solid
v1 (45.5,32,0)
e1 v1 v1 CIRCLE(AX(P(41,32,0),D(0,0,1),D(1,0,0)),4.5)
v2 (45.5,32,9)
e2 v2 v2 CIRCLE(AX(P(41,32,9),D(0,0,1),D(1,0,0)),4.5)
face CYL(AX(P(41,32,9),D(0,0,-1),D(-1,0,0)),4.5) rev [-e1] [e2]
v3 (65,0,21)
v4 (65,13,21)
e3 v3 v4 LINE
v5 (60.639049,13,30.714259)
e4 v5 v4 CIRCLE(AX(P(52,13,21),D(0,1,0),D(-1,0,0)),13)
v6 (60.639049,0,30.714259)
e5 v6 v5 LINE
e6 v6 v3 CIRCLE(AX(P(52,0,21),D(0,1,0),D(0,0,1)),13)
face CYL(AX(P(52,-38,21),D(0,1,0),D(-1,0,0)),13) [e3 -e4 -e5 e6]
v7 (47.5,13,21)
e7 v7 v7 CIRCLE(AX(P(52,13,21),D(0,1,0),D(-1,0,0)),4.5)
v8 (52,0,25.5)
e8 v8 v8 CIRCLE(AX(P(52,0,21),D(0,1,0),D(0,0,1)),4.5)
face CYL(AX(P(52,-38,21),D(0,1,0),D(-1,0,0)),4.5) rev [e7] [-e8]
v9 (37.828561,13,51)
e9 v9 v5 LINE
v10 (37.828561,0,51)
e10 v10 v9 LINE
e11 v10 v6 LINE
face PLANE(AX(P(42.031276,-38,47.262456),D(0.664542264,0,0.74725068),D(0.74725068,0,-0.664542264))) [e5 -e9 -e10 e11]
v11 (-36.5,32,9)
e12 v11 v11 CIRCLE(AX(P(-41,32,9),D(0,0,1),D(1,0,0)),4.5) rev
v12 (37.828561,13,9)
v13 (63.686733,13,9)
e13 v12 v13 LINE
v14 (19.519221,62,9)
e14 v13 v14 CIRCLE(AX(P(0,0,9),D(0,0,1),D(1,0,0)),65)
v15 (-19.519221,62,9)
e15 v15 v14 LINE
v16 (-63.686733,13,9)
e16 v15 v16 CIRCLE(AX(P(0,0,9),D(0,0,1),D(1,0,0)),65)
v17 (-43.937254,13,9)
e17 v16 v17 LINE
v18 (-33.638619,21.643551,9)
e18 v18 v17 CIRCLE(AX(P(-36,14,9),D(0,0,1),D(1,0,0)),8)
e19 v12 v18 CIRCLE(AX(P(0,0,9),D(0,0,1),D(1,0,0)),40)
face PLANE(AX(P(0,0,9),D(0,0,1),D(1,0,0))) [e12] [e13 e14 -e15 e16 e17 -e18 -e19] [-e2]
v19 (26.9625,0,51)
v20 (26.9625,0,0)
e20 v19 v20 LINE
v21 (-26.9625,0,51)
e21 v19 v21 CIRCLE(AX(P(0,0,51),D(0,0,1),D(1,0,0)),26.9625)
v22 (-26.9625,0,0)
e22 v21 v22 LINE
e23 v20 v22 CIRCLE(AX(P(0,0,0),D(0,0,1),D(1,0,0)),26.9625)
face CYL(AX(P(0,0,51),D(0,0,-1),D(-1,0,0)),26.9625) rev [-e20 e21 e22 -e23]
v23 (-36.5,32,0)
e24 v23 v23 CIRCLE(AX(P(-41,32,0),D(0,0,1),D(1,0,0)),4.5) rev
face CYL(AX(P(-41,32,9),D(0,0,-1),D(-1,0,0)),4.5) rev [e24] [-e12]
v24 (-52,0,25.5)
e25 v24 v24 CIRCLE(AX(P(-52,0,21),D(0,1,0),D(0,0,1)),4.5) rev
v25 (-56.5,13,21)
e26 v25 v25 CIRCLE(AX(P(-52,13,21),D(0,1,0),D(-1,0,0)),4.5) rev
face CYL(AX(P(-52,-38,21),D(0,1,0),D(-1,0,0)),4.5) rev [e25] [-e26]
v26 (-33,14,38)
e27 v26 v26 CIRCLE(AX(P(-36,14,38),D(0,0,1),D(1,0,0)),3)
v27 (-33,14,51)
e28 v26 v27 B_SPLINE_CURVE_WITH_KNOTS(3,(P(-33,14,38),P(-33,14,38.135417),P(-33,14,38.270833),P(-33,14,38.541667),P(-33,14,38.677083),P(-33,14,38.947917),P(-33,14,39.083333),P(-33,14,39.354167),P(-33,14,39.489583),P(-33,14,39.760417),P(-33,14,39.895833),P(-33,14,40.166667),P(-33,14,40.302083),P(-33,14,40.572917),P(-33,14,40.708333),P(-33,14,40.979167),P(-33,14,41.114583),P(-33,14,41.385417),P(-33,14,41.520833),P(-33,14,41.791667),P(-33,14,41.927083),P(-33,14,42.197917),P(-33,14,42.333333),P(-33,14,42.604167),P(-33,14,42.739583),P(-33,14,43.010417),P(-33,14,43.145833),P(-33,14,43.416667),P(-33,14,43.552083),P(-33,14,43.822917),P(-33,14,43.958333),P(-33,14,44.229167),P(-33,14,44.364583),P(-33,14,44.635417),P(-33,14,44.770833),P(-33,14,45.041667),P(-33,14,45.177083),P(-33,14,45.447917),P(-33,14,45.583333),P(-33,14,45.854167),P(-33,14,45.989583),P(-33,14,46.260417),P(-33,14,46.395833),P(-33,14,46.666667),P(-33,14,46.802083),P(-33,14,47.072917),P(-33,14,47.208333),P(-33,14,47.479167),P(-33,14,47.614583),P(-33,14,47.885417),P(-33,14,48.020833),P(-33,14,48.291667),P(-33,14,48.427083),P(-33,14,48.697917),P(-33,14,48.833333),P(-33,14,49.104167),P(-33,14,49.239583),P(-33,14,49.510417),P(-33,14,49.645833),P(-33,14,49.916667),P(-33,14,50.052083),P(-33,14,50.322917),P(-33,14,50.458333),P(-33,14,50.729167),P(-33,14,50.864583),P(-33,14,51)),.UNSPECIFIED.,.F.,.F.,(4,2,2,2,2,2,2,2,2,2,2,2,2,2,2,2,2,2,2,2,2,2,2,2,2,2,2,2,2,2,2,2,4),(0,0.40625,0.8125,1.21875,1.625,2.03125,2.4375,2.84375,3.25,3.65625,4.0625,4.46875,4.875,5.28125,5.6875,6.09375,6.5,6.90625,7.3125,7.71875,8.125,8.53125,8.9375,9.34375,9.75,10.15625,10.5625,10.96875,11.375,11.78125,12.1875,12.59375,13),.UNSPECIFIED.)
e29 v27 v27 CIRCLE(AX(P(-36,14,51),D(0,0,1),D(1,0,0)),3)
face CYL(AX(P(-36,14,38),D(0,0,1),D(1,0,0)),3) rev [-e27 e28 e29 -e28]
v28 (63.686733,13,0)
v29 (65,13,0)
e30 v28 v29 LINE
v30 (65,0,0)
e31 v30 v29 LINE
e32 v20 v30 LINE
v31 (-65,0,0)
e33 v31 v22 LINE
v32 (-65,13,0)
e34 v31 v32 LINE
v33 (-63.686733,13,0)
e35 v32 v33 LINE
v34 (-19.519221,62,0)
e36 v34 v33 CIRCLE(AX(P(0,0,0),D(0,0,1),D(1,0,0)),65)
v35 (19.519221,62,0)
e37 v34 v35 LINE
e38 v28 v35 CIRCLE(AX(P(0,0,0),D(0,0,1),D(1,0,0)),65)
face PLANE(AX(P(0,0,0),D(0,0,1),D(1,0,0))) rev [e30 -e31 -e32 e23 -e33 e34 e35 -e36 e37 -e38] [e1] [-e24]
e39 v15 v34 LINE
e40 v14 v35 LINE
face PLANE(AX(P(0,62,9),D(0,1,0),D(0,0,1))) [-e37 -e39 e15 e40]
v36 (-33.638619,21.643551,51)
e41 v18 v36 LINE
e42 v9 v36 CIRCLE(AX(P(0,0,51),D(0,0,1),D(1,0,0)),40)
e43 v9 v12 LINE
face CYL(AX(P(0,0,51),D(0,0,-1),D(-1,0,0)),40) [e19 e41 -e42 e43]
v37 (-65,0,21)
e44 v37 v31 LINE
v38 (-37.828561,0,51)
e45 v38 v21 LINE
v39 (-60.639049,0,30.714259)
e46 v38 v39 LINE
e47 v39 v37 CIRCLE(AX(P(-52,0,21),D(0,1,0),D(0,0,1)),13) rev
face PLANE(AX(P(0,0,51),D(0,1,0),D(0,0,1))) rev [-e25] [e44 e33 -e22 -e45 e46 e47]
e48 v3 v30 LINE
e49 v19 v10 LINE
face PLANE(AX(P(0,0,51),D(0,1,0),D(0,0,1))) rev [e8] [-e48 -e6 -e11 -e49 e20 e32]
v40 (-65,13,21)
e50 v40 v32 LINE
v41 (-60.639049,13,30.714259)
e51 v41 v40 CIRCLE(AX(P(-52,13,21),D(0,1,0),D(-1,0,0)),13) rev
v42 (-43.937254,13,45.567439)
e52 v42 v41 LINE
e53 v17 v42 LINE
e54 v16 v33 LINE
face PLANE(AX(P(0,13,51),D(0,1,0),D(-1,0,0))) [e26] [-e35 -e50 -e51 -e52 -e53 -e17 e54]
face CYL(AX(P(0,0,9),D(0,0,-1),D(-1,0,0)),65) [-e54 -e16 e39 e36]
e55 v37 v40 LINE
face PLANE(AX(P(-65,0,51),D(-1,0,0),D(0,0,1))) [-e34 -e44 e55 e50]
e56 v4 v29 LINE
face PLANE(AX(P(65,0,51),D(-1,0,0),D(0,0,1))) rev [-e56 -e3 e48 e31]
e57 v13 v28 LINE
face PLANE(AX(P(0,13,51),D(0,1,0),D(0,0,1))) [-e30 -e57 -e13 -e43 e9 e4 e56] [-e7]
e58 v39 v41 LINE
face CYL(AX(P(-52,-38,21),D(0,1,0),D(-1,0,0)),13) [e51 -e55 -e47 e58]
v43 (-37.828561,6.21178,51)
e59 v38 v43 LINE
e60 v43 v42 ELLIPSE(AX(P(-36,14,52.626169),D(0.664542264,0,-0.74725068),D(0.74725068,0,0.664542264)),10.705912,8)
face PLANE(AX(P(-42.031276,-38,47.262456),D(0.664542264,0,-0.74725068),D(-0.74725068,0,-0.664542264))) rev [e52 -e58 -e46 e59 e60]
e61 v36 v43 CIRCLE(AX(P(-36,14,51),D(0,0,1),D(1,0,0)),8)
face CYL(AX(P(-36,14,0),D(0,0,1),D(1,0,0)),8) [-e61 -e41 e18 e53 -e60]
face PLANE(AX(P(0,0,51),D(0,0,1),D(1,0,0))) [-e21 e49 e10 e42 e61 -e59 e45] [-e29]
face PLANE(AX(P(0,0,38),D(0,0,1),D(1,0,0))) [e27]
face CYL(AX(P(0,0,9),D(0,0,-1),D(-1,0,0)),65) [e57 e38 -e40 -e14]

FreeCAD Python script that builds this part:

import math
import FreeCAD as App
import Part
import Sketcher

V = App.Vector

doc = App.newDocument("Part")
body = doc.addObject("PartDesign::Body", "Body")

sketch1 = body.newObject("Sketcher::SketchObject", "Sketch")
sketch1.AttachmentSupport = (doc.getObject("XY_Plane"), [""])
sketch1.MapMode = "FlatFace"
sketch1.addGeometry(Part.LineSegment(V(-63.686733, 13, 0), V(-37.828561, 13, 0)), False)
sketch1.addGeometry(Part.ArcOfCircle(Part.Circle(V(0, 0, 0), V(0, 0, 1), 40), math.radians(147.242212), math.radians(161.034425)), False)
sketch1.addGeometry(Part.ArcOfCircle(Part.Circle(V(0, 0, 0), V(0, 0, 1), 40), math.radians(18.965575), math.radians(147.242212)), False)
sketch1.addGeometry(Part.LineSegment(V(37.828561, 13, 0), V(63.686733, 13, 0)), False)
sketch1.addGeometry(Part.ArcOfCircle(Part.Circle(V(0, 0, 0), V(0, 0, 1), 65), math.radians(11.536959), math.radians(72.524635)), False)
sketch1.addGeometry(Part.LineSegment(V(19.519221, 62, 0), V(-19.519221, 62, 0)), False)
sketch1.addGeometry(Part.ArcOfCircle(Part.Circle(V(0, 0, 0), V(0, 0, 1), 65), math.radians(107.475365), math.radians(168.463041)), False)
sketch1.addGeometry(Part.Circle(V(-41, 32, 0), V(0, 0, 1), 4.5), False)
sketch1.addGeometry(Part.Circle(V(41, 32, 0), V(0, 0, 1), 4.5), False)
sketch1.addConstraint(Sketcher.Constraint("Coincident", 0, 2, 1, 2))
sketch1.addConstraint(Sketcher.Constraint("Tangent", 1, 1, 2, 2))
sketch1.addConstraint(Sketcher.Constraint("Coincident", 2, 1, 3, 1))
sketch1.addConstraint(Sketcher.Constraint("Coincident", 3, 2, 4, 1))
sketch1.addConstraint(Sketcher.Constraint("Coincident", 4, 2, 5, 1))
sketch1.addConstraint(Sketcher.Constraint("Coincident", 5, 2, 6, 1))
sketch1.addConstraint(Sketcher.Constraint("Coincident", 6, 2, 0, 1))
sketch1.addConstraint(Sketcher.Constraint("Horizontal", 0))
sketch1.addConstraint(Sketcher.Constraint("Horizontal", 3))
sketch1.addConstraint(Sketcher.Constraint("Horizontal", 5))
sketch1.addConstraint(Sketcher.Constraint("Coincident", 1, 3, -1, 1))
sketch1.addConstraint(Sketcher.Constraint("Coincident", 4, 3, -1, 1))
sketch1.addConstraint(Sketcher.Constraint("Coincident", 6, 3, -1, 1))
sketch1.addConstraint(Sketcher.Constraint("Equal", 1, 2))
sketch1.addConstraint(Sketcher.Constraint("Equal", 4, 6))
sketch1.addConstraint(Sketcher.Constraint("Equal", 7, 8))
sketch1.addConstraint(Sketcher.Constraint("Symmetric", 7, 3, 8, 3, -2))
sketch1.addConstraint(Sketcher.Constraint("Horizontal", 0, 2, 2, 1))
sketch1.addConstraint(Sketcher.Constraint("Diameter", 7, 9.0))
sketch1.addConstraint(Sketcher.Constraint("Radius", 1, 40.0))
sketch1.addConstraint(Sketcher.Constraint("Radius", 4, 65.0))
sketch1.addConstraint(Sketcher.Constraint("DistanceX", 7, 3, -1, 1, 41.0))
sketch1.addConstraint(Sketcher.Constraint("DistanceY", -1, 1, 7, 3, 32.0))
sketch1.addConstraint(Sketcher.Constraint("DistanceY", -1, 1, 0, 2, 13.0))
sketch1.addConstraint(Sketcher.Constraint("DistanceY", -1, 1, 4, 2, 62.0))
sketch1.addConstraint(Sketcher.Constraint("DistanceX", 1, 1, -1, 1, 33.638619))
pad1 = body.newObject("PartDesign::Pad", "Pad")
pad1.Profile = sketch1
pad1.Length = 9

sketch2 = body.newObject("Sketcher::SketchObject", "Sketch001")
sketch2.AttachmentSupport = (doc.getObject("XY_Plane"), [""])
sketch2.MapMode = "FlatFace"
sketch2.addGeometry(Part.LineSegment(V(-65, 13, 0), V(-65, 0, 0)), False)
sketch2.addGeometry(Part.LineSegment(V(-65, 0, 0), V(-26.9625, 0, 0)), False)
sketch2.addGeometry(Part.ArcOfCircle(Part.Circle(V(0, 0, 0), V(0, 0, 1), 26.9625), math.radians(0), math.radians(180)), False)
sketch2.addGeometry(Part.LineSegment(V(26.9625, 0, 0), V(65, 0, 0)), False)
sketch2.addGeometry(Part.LineSegment(V(65, 0, 0), V(65, 13, 0)), False)
sketch2.addGeometry(Part.LineSegment(V(65, 13, 0), V(37.828561, 13, 0)), False)
sketch2.addGeometry(Part.ArcOfCircle(Part.Circle(V(0, 0, 0), V(0, 0, 1), 40), math.radians(18.965575), math.radians(161.034425)), False)
sketch2.addGeometry(Part.LineSegment(V(-37.828561, 13, 0), V(-65, 13, 0)), False)
sketch2.addConstraint(Sketcher.Constraint("Coincident", 0, 2, 1, 1))
sketch2.addConstraint(Sketcher.Constraint("Coincident", 1, 2, 2, 2))
sketch2.addConstraint(Sketcher.Constraint("Coincident", 2, 1, 3, 1))
sketch2.addConstraint(Sketcher.Constraint("Coincident", 3, 2, 4, 1))
sketch2.addConstraint(Sketcher.Constraint("Coincident", 4, 2, 5, 1))
sketch2.addConstraint(Sketcher.Constraint("Coincident", 5, 2, 6, 1))
sketch2.addConstraint(Sketcher.Constraint("Coincident", 6, 2, 7, 1))
sketch2.addConstraint(Sketcher.Constraint("Coincident", 7, 2, 0, 1))
sketch2.addConstraint(Sketcher.Constraint("Vertical", 0))
sketch2.addConstraint(Sketcher.Constraint("Horizontal", 1))
sketch2.addConstraint(Sketcher.Constraint("Horizontal", 3))
sketch2.addConstraint(Sketcher.Constraint("Vertical", 4))
sketch2.addConstraint(Sketcher.Constraint("Horizontal", 5))
sketch2.addConstraint(Sketcher.Constraint("Horizontal", 7))
sketch2.addConstraint(Sketcher.Constraint("Coincident", 2, 3, -1, 1))
sketch2.addConstraint(Sketcher.Constraint("Coincident", 6, 3, -1, 1))
sketch2.addConstraint(Sketcher.Constraint("Symmetric", 0, 2, 3, 2, -1, 1))
sketch2.addConstraint(Sketcher.Constraint("PointOnObject", 0, 2, -1))
sketch2.addConstraint(Sketcher.Constraint("Horizontal", 5, 2, 6, 2))
sketch2.addConstraint(Sketcher.Constraint("Radius", 6, 40.0))
sketch2.addConstraint(Sketcher.Constraint("DistanceY", 0, 2, 0, 1, 13.0))
sketch2.addConstraint(Sketcher.Constraint("DistanceX", 0, 2, -1, 1, 65.0))
sketch2.addConstraint(Sketcher.Constraint("Radius", 2, 26.9625))
pad2 = body.newObject("PartDesign::Pad", "Pad001")
pad2.Profile = sketch2
pad2.Length = 51

sketch3 = body.newObject("Sketcher::SketchObject", "Sketch002")
sketch3.AttachmentSupport = (doc.getObject("XZ_Plane"), [""])
sketch3.MapMode = "FlatFace"
sketch3.AttachmentOffset = App.Placement(V(0, 0, -13), App.Rotation())
sketch3.addGeometry(Part.LineSegment(V(-37.828561, 51, 0), V(-60.639049, 30.714259, 0)), False)
sketch3.addGeometry(Part.ArcOfCircle(Part.Circle(V(-52, 21, 0), V(0, 0, 1), 13), math.radians(131.647219), math.radians(180)), False)
sketch3.addGeometry(Part.LineSegment(V(-65, 21, 0), V(-65, 51, 0)), False)
sketch3.addGeometry(Part.LineSegment(V(-65, 51, 0), V(-37.828561, 51, 0)), False)
sketch3.addGeometry(Part.Circle(V(-52, 21, 0), V(0, 0, 1), 4.5), False)
sketch3.addGeometry(Part.LineSegment(V(60.639049, 30.714259, 0), V(37.828561, 51, 0)), False)
sketch3.addGeometry(Part.LineSegment(V(37.828561, 51, 0), V(65, 51, 0)), False)
sketch3.addGeometry(Part.LineSegment(V(65, 51, 0), V(65, 21, 0)), False)
sketch3.addGeometry(Part.ArcOfCircle(Part.Circle(V(52, 21, 0), V(0, 0, 1), 13), math.radians(0), math.radians(48.352781)), False)
sketch3.addGeometry(Part.Circle(V(52, 21, 0), V(0, 0, 1), 4.5), False)
sketch3.addConstraint(Sketcher.Constraint("Tangent", 0, 2, 1, 1))
sketch3.addConstraint(Sketcher.Constraint("Tangent", 1, 2, 2, 1))
sketch3.addConstraint(Sketcher.Constraint("Coincident", 2, 2, 3, 1))
sketch3.addConstraint(Sketcher.Constraint("Coincident", 3, 2, 0, 1))
sketch3.addConstraint(Sketcher.Constraint("Coincident", 5, 2, 6, 1))
sketch3.addConstraint(Sketcher.Constraint("Coincident", 6, 2, 7, 1))
sketch3.addConstraint(Sketcher.Constraint("Tangent", 7, 2, 8, 1))
sketch3.addConstraint(Sketcher.Constraint("Tangent", 8, 2, 5, 1))
sketch3.addConstraint(Sketcher.Constraint("Vertical", 2))
sketch3.addConstraint(Sketcher.Constraint("Horizontal", 3))
sketch3.addConstraint(Sketcher.Constraint("Horizontal", 6))
sketch3.addConstraint(Sketcher.Constraint("Vertical", 7))
sketch3.addConstraint(Sketcher.Constraint("Coincident", 4, 3, 1, 3))
sketch3.addConstraint(Sketcher.Constraint("Coincident", 9, 3, 8, 3))
sketch3.addConstraint(Sketcher.Constraint("Equal", 1, 8))
sketch3.addConstraint(Sketcher.Constraint("Equal", 4, 9))
sketch3.addConstraint(Sketcher.Constraint("Symmetric", 1, 3, 8, 3, -2))
sketch3.addConstraint(Sketcher.Constraint("Symmetric", 3, 2, 5, 2, -2))
sketch3.addConstraint(Sketcher.Constraint("Diameter", 4, 9.0))
sketch3.addConstraint(Sketcher.Constraint("Radius", 1, 13.0))
sketch3.addConstraint(Sketcher.Constraint("DistanceY", 2, 1, 2, 2, 30.0))
sketch3.addConstraint(Sketcher.Constraint("DistanceX", 1, 3, -1, 1, 52.0))
sketch3.addConstraint(Sketcher.Constraint("DistanceY", -1, 1, 1, 3, 21.0))
sketch3.addConstraint(Sketcher.Constraint("DistanceX", 3, 1, 3, 2, 27.171439))
pocket1 = body.newObject("PartDesign::Pocket", "Pocket")
pocket1.Profile = sketch3
pocket1.Length = 51
pocket1.Reversed = True

sketch4 = body.newObject("Sketcher::SketchObject", "Sketch003")
sketch4.AttachmentSupport = (doc.getObject("XY_Plane"), [""])
sketch4.MapMode = "FlatFace"
sketch4.addGeometry(Part.ArcOfCircle(Part.Circle(V(-36, 14, 0), V(0, 0, 1), 8), math.radians(-103.212901), math.radians(0)), False)
sketch4.addGeometry(Part.ArcOfCircle(Part.Circle(V(-36, 14, 0), V(0, 0, 1), 8), math.radians(0), math.radians(72.83211)), False)
sketch4.addGeometry(Part.ArcOfCircle(Part.Circle(V(-36, 14, 0), V(0, 0, 1), 8), math.radians(72.83211), math.radians(256.787099)), False)
sketch4.addConstraint(Sketcher.Constraint("Tangent", 0, 2, 1, 1))
sketch4.addConstraint(Sketcher.Constraint("Tangent", 1, 2, 2, 1))
sketch4.addConstraint(Sketcher.Constraint("Tangent", 2, 2, 0, 1))
sketch4.addConstraint(Sketcher.Constraint("Horizontal", 2, 3, 0, 2))
sketch4.addConstraint(Sketcher.Constraint("Radius", 0, 8.0))
sketch4.addConstraint(Sketcher.Constraint("DistanceX", 0, 3, -1, 1, 36.0))
sketch4.addConstraint(Sketcher.Constraint("DistanceY", -1, 1, 0, 3, 14.0))
sketch4.addConstraint(Sketcher.Constraint("DistanceX", 1, 2, -1, 1, 33.638619))
sketch4.addConstraint(Sketcher.Constraint("DistanceX", 2, 2, -1, 1, 37.828561))
pad3 = body.newObject("PartDesign::Pad", "Pad002")
pad3.Profile = sketch4
pad3.Length = 51

sketch5 = body.newObject("Sketcher::SketchObject", "Sketch004")
sketch5.AttachmentSupport = (doc.getObject("XY_Plane"), [""])
sketch5.MapMode = "FlatFace"
sketch5.AttachmentOffset = App.Placement(V(0, 0, 38), App.Rotation())
sketch5.addGeometry(Part.ArcOfCircle(Part.Circle(V(-36, 14, 0), V(0, 0, 1), 3), math.radians(-127.554819), math.radians(0)), False)
sketch5.addGeometry(Part.ArcOfCircle(Part.Circle(V(-36, 14, 0), V(0, 0, 1), 3), math.radians(0), math.radians(94.037514)), False)
sketch5.addGeometry(Part.ArcOfCircle(Part.Circle(V(-36, 14, 0), V(0, 0, 1), 3), math.radians(94.037514), math.radians(232.445181)), False)
sketch5.addConstraint(Sketcher.Constraint("Tangent", 0, 2, 1, 1))
sketch5.addConstraint(Sketcher.Constraint("Tangent", 1, 2, 2, 1))
sketch5.addConstraint(Sketcher.Constraint("Tangent", 2, 2, 0, 1))
sketch5.addConstraint(Sketcher.Constraint("Horizontal", 2, 3, 0, 2))
sketch5.addConstraint(Sketcher.Constraint("Radius", 0, 3.0))
sketch5.addConstraint(Sketcher.Constraint("DistanceX", 0, 3, -1, 1, 36.0))
sketch5.addConstraint(Sketcher.Constraint("DistanceY", -1, 1, 0, 3, 14.0))
sketch5.addConstraint(Sketcher.Constraint("DistanceX", 1, 2, -1, 1, 36.211229))
sketch5.addConstraint(Sketcher.Constraint("DistanceX", 2, 2, -1, 1, 37.828561))
pocket2 = body.newObject("PartDesign::Pocket", "Pocket001")
pocket2.Profile = sketch5
pocket2.Length = 13
pocket2.Reversed = True

doc.recompute()
